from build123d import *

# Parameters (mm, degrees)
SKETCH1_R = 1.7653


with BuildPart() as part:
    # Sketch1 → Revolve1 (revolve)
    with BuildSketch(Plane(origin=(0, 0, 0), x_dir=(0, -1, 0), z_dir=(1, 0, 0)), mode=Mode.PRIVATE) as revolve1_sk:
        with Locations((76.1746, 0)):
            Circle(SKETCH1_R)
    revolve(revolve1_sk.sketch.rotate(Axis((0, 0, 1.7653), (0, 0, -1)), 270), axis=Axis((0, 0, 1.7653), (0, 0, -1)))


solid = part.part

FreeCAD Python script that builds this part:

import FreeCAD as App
import Part
import Sketcher
Q = App.Units.Quantity

doc = App.newDocument("Part")
body = doc.addObject("PartDesign::Body", "Body")

# Sketch on YZ plane
sketch1 = body.newObject("Sketcher::SketchObject", "Sketch")
sketch1.AttachmentSupport = (doc.getObject("YZ_Plane"), [""])
sketch1.MapMode = "FlatFace"
sketch1.addGeometry(Part.Circle(App.Vector(-76.1746, 0, 0), App.Vector(0, 0, 1), 1.7653), False)
sketch1.addConstraint([
    Sketcher.Constraint("PointOnObject", 0, 3, -1),
    Sketcher.Constraint("Diameter", 0, Q("0.139 in")),
    Sketcher.Constraint("DistanceX", 0, 3, -1, 1, Q("2.999 in")),
])
revolution = body.newObject("PartDesign::Revolution", "Revolution")
revolution.Profile = sketch1
revolution.ReferenceAxis = (sketch1, ["V_Axis"])
revolution.Angle = 360

doc.recompute()
